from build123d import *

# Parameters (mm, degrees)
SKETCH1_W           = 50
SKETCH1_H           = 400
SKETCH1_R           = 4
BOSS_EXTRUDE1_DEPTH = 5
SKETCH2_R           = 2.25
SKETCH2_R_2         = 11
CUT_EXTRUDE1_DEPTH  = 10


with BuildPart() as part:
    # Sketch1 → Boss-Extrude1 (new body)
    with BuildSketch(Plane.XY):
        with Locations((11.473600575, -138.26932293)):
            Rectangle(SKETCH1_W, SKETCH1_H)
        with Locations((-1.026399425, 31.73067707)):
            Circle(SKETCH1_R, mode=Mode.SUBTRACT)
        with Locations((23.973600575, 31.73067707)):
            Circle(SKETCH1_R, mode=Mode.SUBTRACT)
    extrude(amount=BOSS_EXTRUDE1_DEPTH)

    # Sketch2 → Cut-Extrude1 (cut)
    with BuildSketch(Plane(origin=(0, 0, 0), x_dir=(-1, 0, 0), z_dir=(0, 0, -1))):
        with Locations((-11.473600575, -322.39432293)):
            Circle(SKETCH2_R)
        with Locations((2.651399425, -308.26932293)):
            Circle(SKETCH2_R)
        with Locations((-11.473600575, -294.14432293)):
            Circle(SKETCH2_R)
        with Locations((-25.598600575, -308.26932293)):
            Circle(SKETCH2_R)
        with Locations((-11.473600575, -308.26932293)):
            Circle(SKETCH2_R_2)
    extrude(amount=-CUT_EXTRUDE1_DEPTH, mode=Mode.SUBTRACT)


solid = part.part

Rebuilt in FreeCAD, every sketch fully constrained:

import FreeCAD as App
import Part
import Sketcher

V = App.Vector
Q = App.Units.Quantity

doc = App.newDocument("Part")
body = doc.addObject("PartDesign::Body", "Body")

# Sketch on XY plane
sketch1 = body.newObject("Sketcher::SketchObject", "Sketch")
sketch1.AttachmentSupport = (doc.getObject("XY_Plane"), [""])
sketch1.MapMode = "FlatFace"
sketch1.addGeometry([
    Part.LineSegment(V(-13.526399, 61.730677, 0), V(-13.526399, -338.269323, 0)),  # 0
    Part.LineSegment(V(-13.526399, -338.269323, 0), V(36.473601, -338.269323, 0)),  # 1
    Part.LineSegment(V(36.473601, -338.269323, 0), V(36.473601, 61.730677, 0)),  # 2
    Part.LineSegment(V(36.473601, 61.730677, 0), V(-13.526399, 61.730677, 0)),  # 3
    Part.Circle(V(-1.026399, 31.730677, 0), V(0, 0, 1), 4),  # 4
    Part.Circle(V(23.973601, 31.730677, 0), V(0, 0, 1), 4),  # 5
], False)
sketch1.addConstraint([
    Sketcher.Constraint("Coincident", 0, 2, 1, 1),
    Sketcher.Constraint("Coincident", 1, 2, 2, 1),
    Sketcher.Constraint("Coincident", 2, 2, 3, 1),
    Sketcher.Constraint("Coincident", 3, 2, 0, 1),
    Sketcher.Constraint("Vertical", 0),
    Sketcher.Constraint("Horizontal", 1),
    Sketcher.Constraint("Vertical", 2),
    Sketcher.Constraint("Horizontal", 3),
    Sketcher.Constraint("Equal", 4, 5),
    Sketcher.Constraint("Horizontal", 4, 3, 5, 3),
    Sketcher.Constraint("Diameter", 4, Q("8 mm")),
    Sketcher.Constraint("DistanceX", 1, 1, 1, 2, Q("50 mm")),
    Sketcher.Constraint("DistanceY", 0, 2, 0, 1, Q("400 mm")),
    Sketcher.Constraint("DistanceX", 4, 3, 5, 3, Q("25 mm")),
    Sketcher.Constraint("DistanceY", 0, 2, 4, 3, Q("370 mm")),
    Sketcher.Constraint("DistanceX", 0, 2, 4, 3, Q("12.5 mm")),
    Sketcher.Constraint("DistanceX", 4, 3, -1, 1, Q("1.026399 mm")),
    Sketcher.Constraint("DistanceY", -1, 1, 4, 3, Q("31.730677 mm")),
])
pad1 = body.newObject("PartDesign::Pad", "Pad")
pad1.Profile = sketch1
pad1.Length = 5

# Sketch on XY plane
sketch2 = body.newObject("Sketcher::SketchObject", "Sketch001")
sketch2.AttachmentSupport = (doc.getObject("XY_Plane"), [""])
sketch2.MapMode = "FlatFace"
sketch2.addGeometry([
    Part.Circle(V(11.473601, -322.394323, 0), V(0, 0, 1), 2.25),  # 0
    Part.Circle(V(-2.651399, -308.269323, 0), V(0, 0, 1), 2.25),  # 1
    Part.Circle(V(11.473601, -294.144323, 0), V(0, 0, 1), 2.25),  # 2
    Part.Circle(V(25.598601, -308.269323, 0), V(0, 0, 1), 2.25),  # 3
    Part.Circle(V(11.473601, -308.269323, 0), V(0, 0, 1), 11),  # 4
], False)
sketch2.addConstraint([
    Sketcher.Constraint("Equal", 0, 1),
    Sketcher.Constraint("Equal", 1, 2),
    Sketcher.Constraint("Equal", 2, 3),
    Sketcher.Constraint("Horizontal", 1, 3, 3, 3),
    Sketcher.Constraint("Horizontal", 3, 3, 4, 3),
    Sketcher.Constraint("Vertical", 0, 3, 2, 3),
    Sketcher.Constraint("Vertical", 2, 3, 4, 3),
    Sketcher.Constraint("Diameter", 4, Q("22 mm")),
    Sketcher.Constraint("Diameter", 0, Q("4.5 mm")),
    Sketcher.Constraint("DistanceY", 0, 3, 2, 3, Q("28.25 mm")),
    Sketcher.Constraint("DistanceX", 1, 3, 3, 3, Q("28.25 mm")),
    Sketcher.Constraint("DistanceX", 1, 3, 0, 3, Q("14.125 mm")),
    Sketcher.Constraint("DistanceY", 0, 3, 1, 3, Q("14.125 mm")),
    Sketcher.Constraint("DistanceX", -1, 1, 0, 3, Q("11.473601 mm")),
    Sketcher.Constraint("DistanceY", 0, 3, -1, 1, Q("322.394323 mm")),
])
pocket1 = body.newObject("PartDesign::Pocket", "Pocket")
pocket1.Profile = sketch2
pocket1.Length = 10
pocket1.Reversed = True

doc.recompute()
